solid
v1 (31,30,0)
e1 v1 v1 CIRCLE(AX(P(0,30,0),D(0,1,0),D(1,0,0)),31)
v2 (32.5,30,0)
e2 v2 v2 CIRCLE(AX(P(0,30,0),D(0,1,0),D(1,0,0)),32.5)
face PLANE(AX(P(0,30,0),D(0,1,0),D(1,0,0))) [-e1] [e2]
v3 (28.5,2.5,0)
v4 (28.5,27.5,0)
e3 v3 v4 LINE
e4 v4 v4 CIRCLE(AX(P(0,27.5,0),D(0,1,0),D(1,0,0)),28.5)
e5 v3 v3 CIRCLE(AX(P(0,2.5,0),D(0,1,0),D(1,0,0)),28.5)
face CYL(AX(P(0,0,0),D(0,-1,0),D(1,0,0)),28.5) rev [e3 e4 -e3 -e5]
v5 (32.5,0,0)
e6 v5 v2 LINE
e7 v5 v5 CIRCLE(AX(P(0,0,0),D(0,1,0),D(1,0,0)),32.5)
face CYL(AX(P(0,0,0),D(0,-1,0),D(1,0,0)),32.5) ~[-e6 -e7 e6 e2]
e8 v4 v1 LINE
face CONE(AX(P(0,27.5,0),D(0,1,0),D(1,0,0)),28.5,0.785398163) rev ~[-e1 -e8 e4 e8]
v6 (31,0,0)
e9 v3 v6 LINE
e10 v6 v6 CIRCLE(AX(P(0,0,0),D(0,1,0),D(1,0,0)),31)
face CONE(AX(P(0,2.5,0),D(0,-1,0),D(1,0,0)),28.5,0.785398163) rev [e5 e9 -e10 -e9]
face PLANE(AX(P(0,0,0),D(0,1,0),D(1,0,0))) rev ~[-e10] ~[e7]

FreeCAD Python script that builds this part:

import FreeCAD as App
import Part
import Sketcher


def edges_at(feature, points):
    """Names of the edges that pass closest to the given points."""
    edges = feature.Shape.Edges
    near = lambda p: min(range(len(edges)), key=lambda i: edges[i].distToShape(Part.Vertex(*p))[0])
    return sorted({f"Edge{near(p) + 1}" for p in points})

doc = App.newDocument("Part")
body = doc.addObject("PartDesign::Body", "Body")

# Sketch on XZ plane
sketch1 = body.newObject("Sketcher::SketchObject", "Sketch")
sketch1.AttachmentSupport = (doc.getObject("XZ_Plane"), [""])
sketch1.MapMode = "FlatFace"
sketch1.addGeometry(Part.Circle(App.Vector(0, 0, 0), App.Vector(0, 0, 1), 32), False)
sketch1.addGeometry(Part.Circle(App.Vector(0, 0, 0), App.Vector(0, 0, 1), 28), False)
sketch1.addConstraint(Sketcher.Constraint("Coincident", 0, 3, -1, 1))
sketch1.addConstraint(Sketcher.Constraint("Coincident", 1, 3, -1, 1))
sketch1.addConstraint(Sketcher.Constraint("Diameter", 0, 65.0))
sketch1.addConstraint(Sketcher.Constraint("Diameter", 1, 57.0))
pad1 = body.newObject("PartDesign::Pad", "Pad")
pad1.Profile = sketch1
pad1.Length = 30
pad1.Reversed = True
doc.recompute()

chamfer = body.newObject("PartDesign::Chamfer", "Chamfer")
chamfer.Base = (pad1, edges_at(pad1, [(-26.571, 0, -10.306), (-26.571, 30, -10.306)]))
chamfer.Size = 2.5

doc.recompute()
